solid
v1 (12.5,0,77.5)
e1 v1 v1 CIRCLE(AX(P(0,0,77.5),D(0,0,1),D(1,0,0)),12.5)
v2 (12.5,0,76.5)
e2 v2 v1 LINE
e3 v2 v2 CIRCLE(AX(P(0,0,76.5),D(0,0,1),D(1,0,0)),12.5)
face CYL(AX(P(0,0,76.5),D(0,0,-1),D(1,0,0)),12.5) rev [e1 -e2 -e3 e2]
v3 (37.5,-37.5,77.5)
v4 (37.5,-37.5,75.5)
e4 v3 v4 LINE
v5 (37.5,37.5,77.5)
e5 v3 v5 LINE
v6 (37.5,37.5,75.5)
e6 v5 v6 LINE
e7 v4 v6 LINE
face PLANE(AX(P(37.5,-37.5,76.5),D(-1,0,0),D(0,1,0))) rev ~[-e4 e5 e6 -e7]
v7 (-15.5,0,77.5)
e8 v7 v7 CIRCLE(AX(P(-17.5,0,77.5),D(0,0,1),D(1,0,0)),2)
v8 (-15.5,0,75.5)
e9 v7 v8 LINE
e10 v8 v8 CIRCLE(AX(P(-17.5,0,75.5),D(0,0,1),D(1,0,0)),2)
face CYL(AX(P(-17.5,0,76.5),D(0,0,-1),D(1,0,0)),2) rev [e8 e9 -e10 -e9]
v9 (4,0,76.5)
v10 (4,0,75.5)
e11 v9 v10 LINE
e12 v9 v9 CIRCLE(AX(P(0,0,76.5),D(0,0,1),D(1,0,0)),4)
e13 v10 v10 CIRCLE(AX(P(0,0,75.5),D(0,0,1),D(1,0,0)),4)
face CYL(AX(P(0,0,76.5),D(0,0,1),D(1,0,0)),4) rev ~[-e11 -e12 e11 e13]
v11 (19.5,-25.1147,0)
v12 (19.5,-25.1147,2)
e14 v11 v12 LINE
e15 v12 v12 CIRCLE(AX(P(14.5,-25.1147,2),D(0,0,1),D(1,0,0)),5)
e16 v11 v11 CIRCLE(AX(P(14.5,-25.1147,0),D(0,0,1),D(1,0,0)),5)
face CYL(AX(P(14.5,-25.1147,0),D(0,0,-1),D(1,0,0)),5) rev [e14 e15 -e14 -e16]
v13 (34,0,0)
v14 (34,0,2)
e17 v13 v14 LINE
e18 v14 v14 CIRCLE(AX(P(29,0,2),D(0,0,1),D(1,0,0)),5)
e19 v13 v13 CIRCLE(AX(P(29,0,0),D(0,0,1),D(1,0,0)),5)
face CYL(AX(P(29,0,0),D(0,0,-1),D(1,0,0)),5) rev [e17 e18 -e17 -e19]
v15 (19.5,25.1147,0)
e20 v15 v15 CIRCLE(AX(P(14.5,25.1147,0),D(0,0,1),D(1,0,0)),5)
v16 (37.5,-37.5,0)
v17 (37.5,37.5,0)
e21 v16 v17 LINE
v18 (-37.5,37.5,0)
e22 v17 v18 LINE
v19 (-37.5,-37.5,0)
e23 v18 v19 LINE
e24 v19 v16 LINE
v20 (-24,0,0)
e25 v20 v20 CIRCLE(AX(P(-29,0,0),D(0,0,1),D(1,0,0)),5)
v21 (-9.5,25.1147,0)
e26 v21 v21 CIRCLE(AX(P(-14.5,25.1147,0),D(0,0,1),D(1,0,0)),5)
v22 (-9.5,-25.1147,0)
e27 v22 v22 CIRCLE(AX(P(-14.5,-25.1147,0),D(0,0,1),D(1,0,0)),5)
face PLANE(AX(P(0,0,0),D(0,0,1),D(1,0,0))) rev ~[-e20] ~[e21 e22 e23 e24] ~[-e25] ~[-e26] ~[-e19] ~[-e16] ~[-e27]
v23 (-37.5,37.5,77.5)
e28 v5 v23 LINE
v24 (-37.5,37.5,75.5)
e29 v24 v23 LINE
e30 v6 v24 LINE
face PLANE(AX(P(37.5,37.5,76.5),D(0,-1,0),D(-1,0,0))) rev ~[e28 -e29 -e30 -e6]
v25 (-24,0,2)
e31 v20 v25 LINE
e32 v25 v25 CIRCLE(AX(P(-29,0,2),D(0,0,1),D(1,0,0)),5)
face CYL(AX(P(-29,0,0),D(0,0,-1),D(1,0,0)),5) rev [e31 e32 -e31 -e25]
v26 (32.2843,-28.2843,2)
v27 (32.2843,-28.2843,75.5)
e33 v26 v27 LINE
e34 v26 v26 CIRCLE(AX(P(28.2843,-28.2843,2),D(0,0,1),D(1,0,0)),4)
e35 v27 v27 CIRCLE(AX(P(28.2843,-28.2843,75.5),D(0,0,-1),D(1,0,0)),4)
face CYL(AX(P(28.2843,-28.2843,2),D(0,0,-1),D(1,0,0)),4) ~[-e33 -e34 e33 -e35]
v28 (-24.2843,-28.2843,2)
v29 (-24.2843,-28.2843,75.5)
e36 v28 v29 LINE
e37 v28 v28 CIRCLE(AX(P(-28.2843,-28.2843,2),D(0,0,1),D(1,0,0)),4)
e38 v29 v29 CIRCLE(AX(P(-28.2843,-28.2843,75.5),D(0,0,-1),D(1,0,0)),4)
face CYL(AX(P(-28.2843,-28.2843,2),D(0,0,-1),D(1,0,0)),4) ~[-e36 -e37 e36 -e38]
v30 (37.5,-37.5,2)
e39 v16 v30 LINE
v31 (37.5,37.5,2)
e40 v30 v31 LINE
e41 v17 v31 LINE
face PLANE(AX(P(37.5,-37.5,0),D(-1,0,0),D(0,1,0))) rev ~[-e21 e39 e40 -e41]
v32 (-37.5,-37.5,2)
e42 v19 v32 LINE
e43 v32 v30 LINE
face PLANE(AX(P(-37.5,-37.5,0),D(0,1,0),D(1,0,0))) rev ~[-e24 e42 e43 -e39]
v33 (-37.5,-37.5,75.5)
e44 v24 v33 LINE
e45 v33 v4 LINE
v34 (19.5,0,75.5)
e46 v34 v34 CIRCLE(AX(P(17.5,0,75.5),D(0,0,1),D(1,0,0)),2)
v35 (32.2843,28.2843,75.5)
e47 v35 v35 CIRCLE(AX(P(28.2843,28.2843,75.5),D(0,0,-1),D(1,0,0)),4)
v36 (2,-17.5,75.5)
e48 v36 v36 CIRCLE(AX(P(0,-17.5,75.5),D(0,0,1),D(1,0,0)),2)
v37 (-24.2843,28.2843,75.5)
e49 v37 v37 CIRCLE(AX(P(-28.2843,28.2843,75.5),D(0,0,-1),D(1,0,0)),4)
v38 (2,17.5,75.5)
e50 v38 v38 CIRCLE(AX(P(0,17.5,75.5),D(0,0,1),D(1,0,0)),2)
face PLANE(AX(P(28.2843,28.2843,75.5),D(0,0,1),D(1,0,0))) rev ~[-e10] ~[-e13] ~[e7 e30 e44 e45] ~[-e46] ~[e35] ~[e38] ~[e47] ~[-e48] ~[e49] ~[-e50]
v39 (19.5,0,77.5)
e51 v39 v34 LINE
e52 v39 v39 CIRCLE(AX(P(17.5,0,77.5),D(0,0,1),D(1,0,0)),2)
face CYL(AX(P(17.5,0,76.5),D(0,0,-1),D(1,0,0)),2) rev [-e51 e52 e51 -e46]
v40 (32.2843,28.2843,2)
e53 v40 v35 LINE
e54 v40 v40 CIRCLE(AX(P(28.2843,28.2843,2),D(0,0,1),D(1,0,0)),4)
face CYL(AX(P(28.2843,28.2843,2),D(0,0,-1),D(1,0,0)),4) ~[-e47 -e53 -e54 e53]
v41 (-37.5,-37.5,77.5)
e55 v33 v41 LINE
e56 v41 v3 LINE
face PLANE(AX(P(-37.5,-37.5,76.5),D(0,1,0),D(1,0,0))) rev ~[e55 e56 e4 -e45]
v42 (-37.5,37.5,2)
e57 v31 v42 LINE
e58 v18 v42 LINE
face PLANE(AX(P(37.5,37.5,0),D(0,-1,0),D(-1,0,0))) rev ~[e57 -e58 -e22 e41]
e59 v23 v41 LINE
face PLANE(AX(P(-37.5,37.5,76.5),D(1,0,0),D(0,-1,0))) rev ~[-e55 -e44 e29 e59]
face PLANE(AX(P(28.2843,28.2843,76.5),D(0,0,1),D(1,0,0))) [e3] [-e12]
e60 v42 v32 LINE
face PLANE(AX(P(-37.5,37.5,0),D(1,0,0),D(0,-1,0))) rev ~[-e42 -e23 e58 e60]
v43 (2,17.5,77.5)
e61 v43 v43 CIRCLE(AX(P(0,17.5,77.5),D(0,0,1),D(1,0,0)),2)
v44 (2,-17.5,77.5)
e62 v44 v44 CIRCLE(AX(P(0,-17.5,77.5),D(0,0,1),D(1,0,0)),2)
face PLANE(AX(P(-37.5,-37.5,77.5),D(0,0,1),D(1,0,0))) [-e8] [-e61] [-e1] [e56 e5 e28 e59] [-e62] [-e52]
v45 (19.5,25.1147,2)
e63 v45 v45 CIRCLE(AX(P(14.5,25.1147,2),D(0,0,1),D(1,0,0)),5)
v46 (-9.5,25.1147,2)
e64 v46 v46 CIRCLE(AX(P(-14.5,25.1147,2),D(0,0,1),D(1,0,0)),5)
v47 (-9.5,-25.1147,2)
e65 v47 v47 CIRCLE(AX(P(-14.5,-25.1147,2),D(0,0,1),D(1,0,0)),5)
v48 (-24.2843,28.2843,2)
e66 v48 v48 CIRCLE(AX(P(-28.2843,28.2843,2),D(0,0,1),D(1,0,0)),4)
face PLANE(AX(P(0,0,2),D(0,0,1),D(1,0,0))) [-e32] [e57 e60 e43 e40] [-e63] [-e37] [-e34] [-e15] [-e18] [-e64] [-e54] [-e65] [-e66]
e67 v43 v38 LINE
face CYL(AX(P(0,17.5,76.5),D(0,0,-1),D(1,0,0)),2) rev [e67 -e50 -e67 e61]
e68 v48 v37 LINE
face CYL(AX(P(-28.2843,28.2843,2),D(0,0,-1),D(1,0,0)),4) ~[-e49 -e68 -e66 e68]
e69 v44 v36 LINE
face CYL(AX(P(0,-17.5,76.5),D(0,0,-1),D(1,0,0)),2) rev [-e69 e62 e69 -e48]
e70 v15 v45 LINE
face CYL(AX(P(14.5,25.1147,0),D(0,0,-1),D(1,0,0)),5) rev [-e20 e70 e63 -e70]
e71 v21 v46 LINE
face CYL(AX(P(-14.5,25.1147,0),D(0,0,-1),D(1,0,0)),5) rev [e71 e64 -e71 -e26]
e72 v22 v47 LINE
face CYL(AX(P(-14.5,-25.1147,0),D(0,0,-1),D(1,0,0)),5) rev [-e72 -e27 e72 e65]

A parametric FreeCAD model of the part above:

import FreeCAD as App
import Part
import Sketcher

V = App.Vector
Q = App.Units.Quantity


def add_polygon(sketch, points):
    """Adds a closed chain of lines whose ends are joined by coincident constraints."""
    first, n = sketch.GeometryCount, len(points)
    for a, b in zip(points, points[1:] + points[:1]):
        sketch.addGeometry(Part.LineSegment(App.Vector(*a, 0), App.Vector(*b, 0)), False)
    for i in range(n):
        sketch.addConstraint(Sketcher.Constraint("Coincident", first + i, 2, first + (i + 1) % n, 1))

doc = App.newDocument("Part")
body = doc.addObject("PartDesign::Body", "Body")

# Sketch on XY plane
sketch1 = doc.addObject("Sketcher::SketchObject", "Sketch")
body.addObject(sketch1)
sketch1.AttachmentSupport = (doc.XY_Plane, [""])
sketch1.MapMode = "FlatFace"
add_polygon(sketch1, [(-38, 38), (-38, -38), (38, -38), (38, 38)])  # lines 0-3
sketch1.addGeometry(Part.Circle(V(-14, -25, 0), V(0, 0, 1), 5), False)  # 4
sketch1.addGeometry(Part.Circle(V(14, -25, 0), V(0, 0, 1), 5), False)  # 5
sketch1.addGeometry(Part.Circle(V(-29, 0, 0), V(0, 0, 1), 5), False)  # 6
sketch1.addGeometry(Part.Circle(V(-14, 25, 0), V(0, 0, 1), 5), False)  # 7
sketch1.addGeometry(Part.Circle(V(29, 0, 0), V(0, 0, 1), 5), False)  # 8
sketch1.addGeometry(Part.Circle(V(14, 25, 0), V(0, 0, 1), 5), False)  # 9
sketch1.addConstraint([
    Sketcher.Constraint("Vertical", 0),
    Sketcher.Constraint("Horizontal", 1),
    Sketcher.Constraint("Vertical", 2),
    Sketcher.Constraint("Horizontal", 3),
    Sketcher.Constraint("Equal", 4, 5),
    Sketcher.Constraint("Equal", 5, 6),
    Sketcher.Constraint("Equal", 6, 7),
    Sketcher.Constraint("Equal", 7, 8),
    Sketcher.Constraint("Equal", 8, 9),
    Sketcher.Constraint("Symmetric", 5, 3, 7, 3, -1, 1),
    Sketcher.Constraint("Symmetric", 6, 3, 8, 3, -1, 1),
    Sketcher.Constraint("Symmetric", 4, 3, 9, 3, -1, 1),
    Sketcher.Constraint("Symmetric", 0, 2, 2, 2, -1, 1),
    Sketcher.Constraint("Symmetric", 4, 3, 5, 3, -2),
    Sketcher.Constraint("PointOnObject", 6, 3, -1),
    Sketcher.Constraint("Equal", 3, 0),
    Sketcher.Constraint("DistanceX", 1, 1, 1, 2, Q("75 mm")),
    Sketcher.Constraint("Diameter", 4, Q("10 mm")),
    Sketcher.Constraint("DistanceX", 6, 3, -1, 1, Q("29 mm")),
    Sketcher.Constraint("DistanceX", 4, 3, 5, 3, Q("29 mm")),
    Sketcher.Constraint("DistanceY", 4, 3, -1, 1, Q("25.1147 mm")),
])
pad1 = doc.addObject("PartDesign::Pad", "Pad")
body.addObject(pad1)
pad1.Profile = sketch1
pad1.Length = 2

# Sketch on XY plane
sketch2 = doc.addObject("Sketcher::SketchObject", "Sketch001")
body.addObject(sketch2)
sketch2.AttachmentSupport = (doc.XY_Plane, [""])
sketch2.MapMode = "FlatFace"
sketch2.AttachmentOffset = App.Placement(V(0, 0, 2), App.Rotation())
sketch2.addGeometry([
    Part.Circle(V(-28.3, 28.3, 0), V(0, 0, 1), 4),
    Part.Circle(V(-28.3, -28.3, 0), V(0, 0, 1), 4),
    Part.Circle(V(28.3, -28.3, 0), V(0, 0, 1), 4),
    Part.Circle(V(28.3, 28.3, 0), V(0, 0, 1), 4),
], False)
sketch2.addConstraint([
    Sketcher.Constraint("Equal", 0, 1),
    Sketcher.Constraint("Equal", 1, 2),
    Sketcher.Constraint("Equal", 2, 3),
    Sketcher.Constraint("Symmetric", 0, 3, 2, 3, -1, 1),
    Sketcher.Constraint("Symmetric", 1, 3, 3, 3, -1, 1),
    Sketcher.Constraint("Symmetric", 1, 3, 2, 3, -2),
    Sketcher.Constraint("Diameter", 0, Q("8 mm")),
    Sketcher.Constraint("DistanceX", 0, 3, -1, 1, Q("28.2843 mm")),
    Sketcher.Constraint("DistanceY", -1, 1, 0, 3, Q("28.2843 mm")),
])
pad2 = doc.addObject("PartDesign::Pad", "Pad001")
body.addObject(pad2)
pad2.Profile = sketch2
pad2.Length = 74.5

# Sketch on XY plane
sketch3 = doc.addObject("Sketcher::SketchObject", "Sketch002")
body.addObject(sketch3)
sketch3.AttachmentSupport = (doc.XY_Plane, [""])
sketch3.MapMode = "FlatFace"
sketch3.AttachmentOffset = App.Placement(V(0, 0, 76.5), App.Rotation())
add_polygon(sketch3, [(37.5, 37.5), (-37.5, 37.5), (-37.5, -37.5), (37.5, -37.5)])  # lines 0-3
sketch3.addGeometry(Part.Circle(V(0, -17.5, 0), V(0, 0, 1), 2), False)  # 4
sketch3.addGeometry(Part.Circle(V(-17.5, 0, 0), V(0, 0, 1), 2), False)  # 5
sketch3.addGeometry(Part.Circle(V(0, 0, 0), V(0, 0, 1), 4), False)  # 6
sketch3.addGeometry(Part.Circle(V(17.5, 0, 0), V(0, 0, 1), 2), False)  # 7
sketch3.addGeometry(Part.Circle(V(0, 17.5, 0), V(0, 0, 1), 2), False)  # 8
sketch3.addConstraint([
    Sketcher.Constraint("Horizontal", 0),
    Sketcher.Constraint("Vertical", 1),
    Sketcher.Constraint("Horizontal", 2),
    Sketcher.Constraint("Vertical", 3),
    Sketcher.Constraint("Coincident", 6, 3, -1, 1),
    Sketcher.Constraint("Equal", 4, 5),
    Sketcher.Constraint("Equal", 5, 7),
    Sketcher.Constraint("Equal", 7, 8),
    Sketcher.Constraint("Symmetric", 5, 3, 7, 3, -1, 1),
    Sketcher.Constraint("Symmetric", 4, 3, 8, 3, -1, 1),
    Sketcher.Constraint("Symmetric", 0, 2, 2, 2, -1, 1),
    Sketcher.Constraint("PointOnObject", 4, 3, -2),
    Sketcher.Constraint("PointOnObject", 5, 3, -1),
    Sketcher.Constraint("Equal", 2, 1),
    Sketcher.Constraint("Diameter", 4, Q("4 mm")),
    Sketcher.Constraint("Diameter", 6, Q("8 mm")),
    Sketcher.Constraint("DistanceX", 0, 2, 0, 1, Q("75 mm")),
    Sketcher.Constraint("DistanceX", 5, 3, 7, 3, Q("35 mm")),
    Sketcher.Constraint("DistanceY", 4, 3, 8, 3, Q("35 mm")),
])
pad3 = doc.addObject("PartDesign::Pad", "Pad002")
body.addObject(pad3)
pad3.Profile = sketch3
pad3.Length = 1
pad3.Reversed = True

# Sketch on XY plane
sketch4 = doc.addObject("Sketcher::SketchObject", "Sketch003")
body.addObject(sketch4)
sketch4.AttachmentSupport = (doc.XY_Plane, [""])
sketch4.MapMode = "FlatFace"
sketch4.AttachmentOffset = App.Placement(V(0, 0, 76.5), App.Rotation())
add_polygon(sketch4, [(37.5, 37.5), (-37.5, 37.5), (-37.5, -37.5), (37.5, -37.5)])  # lines 0-3
sketch4.addGeometry(Part.Circle(V(0, -17.5, 0), V(0, 0, 1), 2), False)  # 4
sketch4.addGeometry(Part.Circle(V(-17.5, 0, 0), V(0, 0, 1), 2), False)  # 5
sketch4.addGeometry(Part.Circle(V(0, 0, 0), V(0, 0, 1), 12.5), False)  # 6
sketch4.addGeometry(Part.Circle(V(17.5, 0, 0), V(0, 0, 1), 2), False)  # 7
sketch4.addGeometry(Part.Circle(V(0, 17.5, 0), V(0, 0, 1), 2), False)  # 8
sketch4.addConstraint([
    Sketcher.Constraint("Horizontal", 0),
    Sketcher.Constraint("Vertical", 1),
    Sketcher.Constraint("Horizontal", 2),
    Sketcher.Constraint("Vertical", 3),
    Sketcher.Constraint("Coincident", 6, 3, -1, 1),
    Sketcher.Constraint("Equal", 4, 5),
    Sketcher.Constraint("Equal", 5, 7),
    Sketcher.Constraint("Equal", 7, 8),
    Sketcher.Constraint("Symmetric", 5, 3, 7, 3, -1, 1),
    Sketcher.Constraint("Symmetric", 4, 3, 8, 3, -1, 1),
    Sketcher.Constraint("Symmetric", 0, 2, 2, 2, -1, 1),
    Sketcher.Constraint("PointOnObject", 4, 3, -2),
    Sketcher.Constraint("PointOnObject", 5, 3, -1),
    Sketcher.Constraint("Equal", 2, 1),
    Sketcher.Constraint("Diameter", 4, Q("4 mm")),
    Sketcher.Constraint("Diameter", 6, Q("25 mm")),
    Sketcher.Constraint("DistanceX", 0, 2, 0, 1, Q("75 mm")),
    Sketcher.Constraint("DistanceX", 5, 3, 7, 3, Q("35 mm")),
    Sketcher.Constraint("DistanceY", 4, 3, 8, 3, Q("35 mm")),
])
pad4 = doc.addObject("PartDesign::Pad", "Pad003")
body.addObject(pad4)
pad4.Profile = sketch4
pad4.Length = 1

doc.recompute()
